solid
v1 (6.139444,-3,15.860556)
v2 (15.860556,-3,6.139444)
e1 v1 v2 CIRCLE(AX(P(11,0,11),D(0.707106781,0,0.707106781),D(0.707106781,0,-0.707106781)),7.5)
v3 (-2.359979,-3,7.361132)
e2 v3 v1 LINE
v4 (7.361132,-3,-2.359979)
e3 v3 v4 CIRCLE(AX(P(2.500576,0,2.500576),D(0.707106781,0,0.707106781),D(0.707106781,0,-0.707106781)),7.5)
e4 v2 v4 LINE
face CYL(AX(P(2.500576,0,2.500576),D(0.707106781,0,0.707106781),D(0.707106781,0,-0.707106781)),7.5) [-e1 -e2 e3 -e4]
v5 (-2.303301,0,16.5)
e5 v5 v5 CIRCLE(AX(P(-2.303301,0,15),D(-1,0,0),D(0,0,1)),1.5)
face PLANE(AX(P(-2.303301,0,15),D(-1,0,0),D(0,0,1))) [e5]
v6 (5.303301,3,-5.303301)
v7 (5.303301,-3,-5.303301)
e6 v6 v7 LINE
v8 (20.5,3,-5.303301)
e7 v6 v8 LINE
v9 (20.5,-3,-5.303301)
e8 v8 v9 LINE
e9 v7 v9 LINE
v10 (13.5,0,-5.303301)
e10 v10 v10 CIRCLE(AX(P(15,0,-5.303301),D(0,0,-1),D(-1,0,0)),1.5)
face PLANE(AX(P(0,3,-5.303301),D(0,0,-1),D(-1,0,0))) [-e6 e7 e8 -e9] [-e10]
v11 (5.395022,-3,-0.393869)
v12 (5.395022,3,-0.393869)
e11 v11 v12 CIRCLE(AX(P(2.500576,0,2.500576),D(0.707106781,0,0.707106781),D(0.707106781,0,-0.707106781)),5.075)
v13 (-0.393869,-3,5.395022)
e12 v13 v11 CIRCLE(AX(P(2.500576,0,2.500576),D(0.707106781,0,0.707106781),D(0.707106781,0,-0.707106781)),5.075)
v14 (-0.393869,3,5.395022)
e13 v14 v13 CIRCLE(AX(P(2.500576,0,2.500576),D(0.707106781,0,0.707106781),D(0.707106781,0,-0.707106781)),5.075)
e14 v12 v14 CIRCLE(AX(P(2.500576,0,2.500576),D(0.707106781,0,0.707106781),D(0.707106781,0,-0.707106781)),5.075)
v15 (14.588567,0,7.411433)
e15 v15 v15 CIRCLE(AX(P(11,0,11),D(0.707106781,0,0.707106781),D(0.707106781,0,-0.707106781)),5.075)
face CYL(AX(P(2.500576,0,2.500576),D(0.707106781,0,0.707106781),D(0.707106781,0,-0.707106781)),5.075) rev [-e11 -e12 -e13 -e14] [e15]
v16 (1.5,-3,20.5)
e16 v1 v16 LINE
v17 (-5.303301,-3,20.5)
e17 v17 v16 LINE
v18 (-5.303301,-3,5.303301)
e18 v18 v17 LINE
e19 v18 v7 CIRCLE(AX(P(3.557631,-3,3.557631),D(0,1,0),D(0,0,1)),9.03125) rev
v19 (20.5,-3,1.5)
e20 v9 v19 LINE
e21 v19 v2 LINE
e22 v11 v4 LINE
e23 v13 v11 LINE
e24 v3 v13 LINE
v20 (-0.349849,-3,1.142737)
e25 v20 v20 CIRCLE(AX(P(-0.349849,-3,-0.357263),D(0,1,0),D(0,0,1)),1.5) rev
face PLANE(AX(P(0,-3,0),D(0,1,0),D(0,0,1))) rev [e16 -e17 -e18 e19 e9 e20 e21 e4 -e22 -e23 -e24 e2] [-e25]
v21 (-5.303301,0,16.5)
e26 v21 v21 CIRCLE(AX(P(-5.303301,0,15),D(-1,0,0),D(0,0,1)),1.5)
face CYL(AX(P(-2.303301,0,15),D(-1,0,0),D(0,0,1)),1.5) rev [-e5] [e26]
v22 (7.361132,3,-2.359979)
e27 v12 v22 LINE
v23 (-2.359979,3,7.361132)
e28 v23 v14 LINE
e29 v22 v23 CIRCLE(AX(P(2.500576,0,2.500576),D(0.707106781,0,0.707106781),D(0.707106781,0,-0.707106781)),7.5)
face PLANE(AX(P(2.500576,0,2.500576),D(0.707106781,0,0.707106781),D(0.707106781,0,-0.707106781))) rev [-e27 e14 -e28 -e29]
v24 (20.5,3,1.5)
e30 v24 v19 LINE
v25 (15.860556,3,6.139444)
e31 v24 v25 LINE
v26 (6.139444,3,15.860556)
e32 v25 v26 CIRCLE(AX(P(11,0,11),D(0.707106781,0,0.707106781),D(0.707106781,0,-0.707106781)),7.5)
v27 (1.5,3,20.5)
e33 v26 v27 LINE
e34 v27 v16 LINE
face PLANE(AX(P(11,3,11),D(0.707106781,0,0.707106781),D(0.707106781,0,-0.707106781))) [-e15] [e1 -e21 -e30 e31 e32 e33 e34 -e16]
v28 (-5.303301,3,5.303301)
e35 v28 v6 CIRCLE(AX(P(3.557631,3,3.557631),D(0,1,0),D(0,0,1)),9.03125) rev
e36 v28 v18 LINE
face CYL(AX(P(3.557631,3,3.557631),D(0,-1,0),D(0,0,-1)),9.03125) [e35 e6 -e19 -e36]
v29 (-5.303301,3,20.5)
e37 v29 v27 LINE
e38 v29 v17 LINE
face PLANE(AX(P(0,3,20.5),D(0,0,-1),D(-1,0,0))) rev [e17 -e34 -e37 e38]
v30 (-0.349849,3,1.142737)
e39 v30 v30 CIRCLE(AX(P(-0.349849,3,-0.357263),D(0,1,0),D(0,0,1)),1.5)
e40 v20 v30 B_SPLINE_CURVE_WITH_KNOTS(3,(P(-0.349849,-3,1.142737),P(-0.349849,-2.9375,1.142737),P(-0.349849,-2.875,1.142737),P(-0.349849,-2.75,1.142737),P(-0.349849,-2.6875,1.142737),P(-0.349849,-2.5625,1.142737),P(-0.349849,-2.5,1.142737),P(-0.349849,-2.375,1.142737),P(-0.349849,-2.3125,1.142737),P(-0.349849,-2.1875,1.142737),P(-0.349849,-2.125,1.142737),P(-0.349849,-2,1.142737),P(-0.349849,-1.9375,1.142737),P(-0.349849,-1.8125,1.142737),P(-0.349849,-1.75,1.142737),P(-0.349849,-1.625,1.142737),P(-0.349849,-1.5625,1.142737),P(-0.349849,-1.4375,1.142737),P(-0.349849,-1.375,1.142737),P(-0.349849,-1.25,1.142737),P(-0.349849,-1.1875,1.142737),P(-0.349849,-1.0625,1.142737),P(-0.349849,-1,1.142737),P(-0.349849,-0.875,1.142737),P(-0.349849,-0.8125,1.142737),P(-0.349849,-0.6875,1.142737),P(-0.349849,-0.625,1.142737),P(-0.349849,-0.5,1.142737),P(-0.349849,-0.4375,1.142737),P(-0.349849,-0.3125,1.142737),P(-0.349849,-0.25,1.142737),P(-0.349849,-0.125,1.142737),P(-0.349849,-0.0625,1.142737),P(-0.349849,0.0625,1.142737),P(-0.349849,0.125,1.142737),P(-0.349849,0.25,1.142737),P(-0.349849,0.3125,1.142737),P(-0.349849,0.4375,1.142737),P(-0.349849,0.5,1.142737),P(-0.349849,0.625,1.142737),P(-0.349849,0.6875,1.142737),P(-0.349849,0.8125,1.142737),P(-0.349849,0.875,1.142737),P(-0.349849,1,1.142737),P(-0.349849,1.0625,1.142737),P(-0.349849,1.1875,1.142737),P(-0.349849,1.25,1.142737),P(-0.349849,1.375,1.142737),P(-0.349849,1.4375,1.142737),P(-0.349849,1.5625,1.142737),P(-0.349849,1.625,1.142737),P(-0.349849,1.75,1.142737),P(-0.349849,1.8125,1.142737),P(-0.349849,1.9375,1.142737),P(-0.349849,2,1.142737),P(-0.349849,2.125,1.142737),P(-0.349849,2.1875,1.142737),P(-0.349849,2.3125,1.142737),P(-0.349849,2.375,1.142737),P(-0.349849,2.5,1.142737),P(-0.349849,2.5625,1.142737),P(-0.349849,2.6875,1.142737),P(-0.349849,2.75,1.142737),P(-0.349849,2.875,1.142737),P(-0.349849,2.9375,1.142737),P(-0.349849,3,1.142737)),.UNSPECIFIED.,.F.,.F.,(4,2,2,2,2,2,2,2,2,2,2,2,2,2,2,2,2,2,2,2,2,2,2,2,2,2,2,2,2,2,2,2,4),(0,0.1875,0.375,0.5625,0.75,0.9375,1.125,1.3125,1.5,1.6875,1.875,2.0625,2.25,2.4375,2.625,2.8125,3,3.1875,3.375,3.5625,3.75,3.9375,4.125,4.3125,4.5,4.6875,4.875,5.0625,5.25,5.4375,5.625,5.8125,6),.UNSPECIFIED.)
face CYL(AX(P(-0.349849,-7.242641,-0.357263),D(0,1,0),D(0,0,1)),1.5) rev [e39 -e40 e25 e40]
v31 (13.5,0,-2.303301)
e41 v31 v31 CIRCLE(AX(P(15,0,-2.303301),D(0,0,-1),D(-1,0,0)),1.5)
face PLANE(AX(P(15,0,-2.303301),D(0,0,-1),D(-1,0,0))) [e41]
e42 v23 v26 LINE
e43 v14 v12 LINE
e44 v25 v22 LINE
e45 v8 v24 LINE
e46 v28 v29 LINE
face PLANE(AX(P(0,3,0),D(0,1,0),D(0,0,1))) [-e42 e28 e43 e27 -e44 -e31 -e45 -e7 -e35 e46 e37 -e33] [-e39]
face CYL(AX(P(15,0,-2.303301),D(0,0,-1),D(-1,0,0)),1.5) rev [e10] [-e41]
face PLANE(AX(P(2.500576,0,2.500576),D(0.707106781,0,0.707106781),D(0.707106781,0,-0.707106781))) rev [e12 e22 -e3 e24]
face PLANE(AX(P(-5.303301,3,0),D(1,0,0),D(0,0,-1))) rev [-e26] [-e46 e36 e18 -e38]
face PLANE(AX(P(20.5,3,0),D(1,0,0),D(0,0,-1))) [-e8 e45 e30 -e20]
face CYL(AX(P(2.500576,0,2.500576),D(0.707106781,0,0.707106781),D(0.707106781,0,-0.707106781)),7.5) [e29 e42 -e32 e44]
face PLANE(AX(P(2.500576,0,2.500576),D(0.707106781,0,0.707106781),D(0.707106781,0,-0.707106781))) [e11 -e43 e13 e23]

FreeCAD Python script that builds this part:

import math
import FreeCAD as App
import Part
import Sketcher
from FreeCAD import Vector
Q = App.Units.Quantity

doc = App.newDocument("Part")
body = doc.addObject("PartDesign::Body", "Body")

# Sketch on XZ plane
sketch1 = body.newObject("Sketcher::SketchObject", "Sketch")
sketch1.AttachmentSupport = (doc.getObject("XZ_Plane"), [""])
sketch1.MapMode = "FlatFace"
sketch1.addGeometry([
    Part.LineSegment(Vector(20, 2, 0), Vector(20, -5, 0)),  # 0
    Part.LineSegment(Vector(20, -5, 0), Vector(5, -5, 0)),  # 1
    Part.ArcOfCircle(Part.Circle(Vector(4, 4, 0), Vector(0, 0, 1), 9), math.radians(169), math.radians(281)),  # 2
    Part.LineSegment(Vector(-5, 5, 0), Vector(-5, 20, 0)),  # 3
    Part.LineSegment(Vector(-5, 20, 0), Vector(2, 20, 0)),  # 4
    Part.LineSegment(Vector(2, 20, 0), Vector(20, 2, 0)),  # 5
], False)
sketch1.addConstraint([
    Sketcher.Constraint("Coincident", 0, 2, 1, 1),
    Sketcher.Constraint("Coincident", 1, 2, 2, 2),
    Sketcher.Constraint("Coincident", 2, 1, 3, 1),
    Sketcher.Constraint("Coincident", 3, 2, 4, 1),
    Sketcher.Constraint("Coincident", 4, 2, 5, 1),
    Sketcher.Constraint("Coincident", 5, 2, 0, 1),
    Sketcher.Constraint("Vertical", 0),
    Sketcher.Constraint("Horizontal", 1),
    Sketcher.Constraint("Vertical", 3),
    Sketcher.Constraint("Horizontal", 4),
    Sketcher.Constraint("Symmetric", 1, 2, 2, 1, -1, 1),
    Sketcher.Constraint("Equal", 4, 0),
    Sketcher.Constraint("Equal", 1, 3),
    Sketcher.Constraint("Angle", 5, Q("-45 deg")),
    Sketcher.Constraint("DistanceX", 4, 2, 0, 2, 19.0),
    Sketcher.Constraint("DistanceX", -1, 1, 0, 2, 20.5),
    Sketcher.Constraint("Radius", 2, 9.03125),
    Sketcher.Constraint("DistanceX", 1, 2, 1, 1, 15.196699),
])
pad1 = body.newObject("PartDesign::Pad", "Pad")
pad1.Profile = sketch1
pad1.Length = 6
pad1.Midplane = True

# Sketch on an angled plane
sketch2 = body.newObject("Sketcher::SketchObject", "Sketch001")
sketch2.Placement = App.Placement(Vector(11, 0, 11), App.Rotation(Vector(0.707106781, 0, -0.707106781), Vector(0, 0.999999999, 0), Vector(0.707106781, 0, 0.707106781), "ZXY"))
sketch2.addGeometry([
    Part.Circle(Vector(0, 0, 0), Vector(0, 0, 1), 8),
    Part.Circle(Vector(0, 0, 0), Vector(0, 0, 1), 5),
], False)
sketch2.addConstraint([
    Sketcher.Constraint("Coincident", 0, 3, -1, 1),
    Sketcher.Constraint("Coincident", 1, 3, -1, 1),
    Sketcher.Constraint("Diameter", 0, 15.0),
    Sketcher.Constraint("Diameter", 1, 10.15),
])
pad2 = body.newObject("PartDesign::Pad", "Pad001")
pad2.Profile = sketch2
pad2.Length = 12.02
pad2.Reversed = True

# Sketch on an angled plane
sketch3 = body.newObject("Sketcher::SketchObject", "Sketch002")
sketch3.Placement = App.Placement(Vector(11, 0, 11), App.Rotation(Vector(0.707106781, 0, -0.707106781), Vector(0, 0.999999999, 0), Vector(0.707106781, 0, 0.707106781), "ZXY"))
sketch3.addGeometry(Part.Circle(Vector(0, 0, 0), Vector(0, 0, 1), 5), False)
sketch3.addConstraint([
    Sketcher.Constraint("Coincident", 0, 3, -1, 1),
    Sketcher.Constraint("Diameter", 0, 10.15),
])
pocket1 = body.newObject("PartDesign::Pocket", "Pocket")
pocket1.Profile = sketch3
pocket1.Length = 12.02

# Sketch on XZ plane
sketch4 = body.newObject("Sketcher::SketchObject", "Sketch003")
sketch4.AttachmentSupport = (doc.getObject("XZ_Plane"), [""])
sketch4.MapMode = "FlatFace"
sketch4.AttachmentOffset = App.Placement(Vector(0, 0, -3), App.Rotation())
sketch4.addGeometry(Part.Circle(Vector(-0.3, -0.4, 0), Vector(0, 0, 1), 1.5), False)
sketch4.addConstraint([
    Sketcher.Constraint("Diameter", 0, 3.0),
    Sketcher.Constraint("DistanceX", 0, 3, -1, 1, 0.349849),
    Sketcher.Constraint("DistanceY", 0, 3, -1, 1, 0.357263),
])
pocket2 = body.newObject("PartDesign::Pocket", "Pocket001")
pocket2.Profile = sketch4
pocket2.Length = 6
pocket2.Reversed = True

# Sketch on YZ plane
sketch5 = body.newObject("Sketcher::SketchObject", "Sketch004")
sketch5.AttachmentSupport = (doc.getObject("YZ_Plane"), [""])
sketch5.MapMode = "FlatFace"
sketch5.AttachmentOffset = App.Placement(Vector(0, 0, -5.303301), App.Rotation())
sketch5.addGeometry(Part.Circle(Vector(0, 15, 0), Vector(0, 0, 1), 1.5), False)
sketch5.addConstraint([
    Sketcher.Constraint("PointOnObject", 0, 3, -2),
    Sketcher.Constraint("Diameter", 0, 3.0),
    Sketcher.Constraint("DistanceY", -1, 1, 0, 3, 15.0),
])
pocket3 = body.newObject("PartDesign::Pocket", "Pocket002")
pocket3.Profile = sketch5
pocket3.Length = 3
pocket3.Reversed = True

# Sketch on XY plane
sketch6 = body.newObject("Sketcher::SketchObject", "Sketch005")
sketch6.AttachmentSupport = (doc.getObject("XY_Plane"), [""])
sketch6.MapMode = "FlatFace"
sketch6.AttachmentOffset = App.Placement(Vector(0, 0, -5.303301), App.Rotation())
sketch6.addGeometry(Part.Circle(Vector(15, 0, 0), Vector(0, 0, 1), 1.5), False)
sketch6.addConstraint([
    Sketcher.Constraint("PointOnObject", 0, 3, -1),
    Sketcher.Constraint("Diameter", 0, 3.0),
    Sketcher.Constraint("DistanceX", -1, 1, 0, 3, 15.0),
])
pocket4 = body.newObject("PartDesign::Pocket", "Pocket003")
pocket4.Profile = sketch6
pocket4.Length = 3
pocket4.Reversed = True

doc.recompute()
